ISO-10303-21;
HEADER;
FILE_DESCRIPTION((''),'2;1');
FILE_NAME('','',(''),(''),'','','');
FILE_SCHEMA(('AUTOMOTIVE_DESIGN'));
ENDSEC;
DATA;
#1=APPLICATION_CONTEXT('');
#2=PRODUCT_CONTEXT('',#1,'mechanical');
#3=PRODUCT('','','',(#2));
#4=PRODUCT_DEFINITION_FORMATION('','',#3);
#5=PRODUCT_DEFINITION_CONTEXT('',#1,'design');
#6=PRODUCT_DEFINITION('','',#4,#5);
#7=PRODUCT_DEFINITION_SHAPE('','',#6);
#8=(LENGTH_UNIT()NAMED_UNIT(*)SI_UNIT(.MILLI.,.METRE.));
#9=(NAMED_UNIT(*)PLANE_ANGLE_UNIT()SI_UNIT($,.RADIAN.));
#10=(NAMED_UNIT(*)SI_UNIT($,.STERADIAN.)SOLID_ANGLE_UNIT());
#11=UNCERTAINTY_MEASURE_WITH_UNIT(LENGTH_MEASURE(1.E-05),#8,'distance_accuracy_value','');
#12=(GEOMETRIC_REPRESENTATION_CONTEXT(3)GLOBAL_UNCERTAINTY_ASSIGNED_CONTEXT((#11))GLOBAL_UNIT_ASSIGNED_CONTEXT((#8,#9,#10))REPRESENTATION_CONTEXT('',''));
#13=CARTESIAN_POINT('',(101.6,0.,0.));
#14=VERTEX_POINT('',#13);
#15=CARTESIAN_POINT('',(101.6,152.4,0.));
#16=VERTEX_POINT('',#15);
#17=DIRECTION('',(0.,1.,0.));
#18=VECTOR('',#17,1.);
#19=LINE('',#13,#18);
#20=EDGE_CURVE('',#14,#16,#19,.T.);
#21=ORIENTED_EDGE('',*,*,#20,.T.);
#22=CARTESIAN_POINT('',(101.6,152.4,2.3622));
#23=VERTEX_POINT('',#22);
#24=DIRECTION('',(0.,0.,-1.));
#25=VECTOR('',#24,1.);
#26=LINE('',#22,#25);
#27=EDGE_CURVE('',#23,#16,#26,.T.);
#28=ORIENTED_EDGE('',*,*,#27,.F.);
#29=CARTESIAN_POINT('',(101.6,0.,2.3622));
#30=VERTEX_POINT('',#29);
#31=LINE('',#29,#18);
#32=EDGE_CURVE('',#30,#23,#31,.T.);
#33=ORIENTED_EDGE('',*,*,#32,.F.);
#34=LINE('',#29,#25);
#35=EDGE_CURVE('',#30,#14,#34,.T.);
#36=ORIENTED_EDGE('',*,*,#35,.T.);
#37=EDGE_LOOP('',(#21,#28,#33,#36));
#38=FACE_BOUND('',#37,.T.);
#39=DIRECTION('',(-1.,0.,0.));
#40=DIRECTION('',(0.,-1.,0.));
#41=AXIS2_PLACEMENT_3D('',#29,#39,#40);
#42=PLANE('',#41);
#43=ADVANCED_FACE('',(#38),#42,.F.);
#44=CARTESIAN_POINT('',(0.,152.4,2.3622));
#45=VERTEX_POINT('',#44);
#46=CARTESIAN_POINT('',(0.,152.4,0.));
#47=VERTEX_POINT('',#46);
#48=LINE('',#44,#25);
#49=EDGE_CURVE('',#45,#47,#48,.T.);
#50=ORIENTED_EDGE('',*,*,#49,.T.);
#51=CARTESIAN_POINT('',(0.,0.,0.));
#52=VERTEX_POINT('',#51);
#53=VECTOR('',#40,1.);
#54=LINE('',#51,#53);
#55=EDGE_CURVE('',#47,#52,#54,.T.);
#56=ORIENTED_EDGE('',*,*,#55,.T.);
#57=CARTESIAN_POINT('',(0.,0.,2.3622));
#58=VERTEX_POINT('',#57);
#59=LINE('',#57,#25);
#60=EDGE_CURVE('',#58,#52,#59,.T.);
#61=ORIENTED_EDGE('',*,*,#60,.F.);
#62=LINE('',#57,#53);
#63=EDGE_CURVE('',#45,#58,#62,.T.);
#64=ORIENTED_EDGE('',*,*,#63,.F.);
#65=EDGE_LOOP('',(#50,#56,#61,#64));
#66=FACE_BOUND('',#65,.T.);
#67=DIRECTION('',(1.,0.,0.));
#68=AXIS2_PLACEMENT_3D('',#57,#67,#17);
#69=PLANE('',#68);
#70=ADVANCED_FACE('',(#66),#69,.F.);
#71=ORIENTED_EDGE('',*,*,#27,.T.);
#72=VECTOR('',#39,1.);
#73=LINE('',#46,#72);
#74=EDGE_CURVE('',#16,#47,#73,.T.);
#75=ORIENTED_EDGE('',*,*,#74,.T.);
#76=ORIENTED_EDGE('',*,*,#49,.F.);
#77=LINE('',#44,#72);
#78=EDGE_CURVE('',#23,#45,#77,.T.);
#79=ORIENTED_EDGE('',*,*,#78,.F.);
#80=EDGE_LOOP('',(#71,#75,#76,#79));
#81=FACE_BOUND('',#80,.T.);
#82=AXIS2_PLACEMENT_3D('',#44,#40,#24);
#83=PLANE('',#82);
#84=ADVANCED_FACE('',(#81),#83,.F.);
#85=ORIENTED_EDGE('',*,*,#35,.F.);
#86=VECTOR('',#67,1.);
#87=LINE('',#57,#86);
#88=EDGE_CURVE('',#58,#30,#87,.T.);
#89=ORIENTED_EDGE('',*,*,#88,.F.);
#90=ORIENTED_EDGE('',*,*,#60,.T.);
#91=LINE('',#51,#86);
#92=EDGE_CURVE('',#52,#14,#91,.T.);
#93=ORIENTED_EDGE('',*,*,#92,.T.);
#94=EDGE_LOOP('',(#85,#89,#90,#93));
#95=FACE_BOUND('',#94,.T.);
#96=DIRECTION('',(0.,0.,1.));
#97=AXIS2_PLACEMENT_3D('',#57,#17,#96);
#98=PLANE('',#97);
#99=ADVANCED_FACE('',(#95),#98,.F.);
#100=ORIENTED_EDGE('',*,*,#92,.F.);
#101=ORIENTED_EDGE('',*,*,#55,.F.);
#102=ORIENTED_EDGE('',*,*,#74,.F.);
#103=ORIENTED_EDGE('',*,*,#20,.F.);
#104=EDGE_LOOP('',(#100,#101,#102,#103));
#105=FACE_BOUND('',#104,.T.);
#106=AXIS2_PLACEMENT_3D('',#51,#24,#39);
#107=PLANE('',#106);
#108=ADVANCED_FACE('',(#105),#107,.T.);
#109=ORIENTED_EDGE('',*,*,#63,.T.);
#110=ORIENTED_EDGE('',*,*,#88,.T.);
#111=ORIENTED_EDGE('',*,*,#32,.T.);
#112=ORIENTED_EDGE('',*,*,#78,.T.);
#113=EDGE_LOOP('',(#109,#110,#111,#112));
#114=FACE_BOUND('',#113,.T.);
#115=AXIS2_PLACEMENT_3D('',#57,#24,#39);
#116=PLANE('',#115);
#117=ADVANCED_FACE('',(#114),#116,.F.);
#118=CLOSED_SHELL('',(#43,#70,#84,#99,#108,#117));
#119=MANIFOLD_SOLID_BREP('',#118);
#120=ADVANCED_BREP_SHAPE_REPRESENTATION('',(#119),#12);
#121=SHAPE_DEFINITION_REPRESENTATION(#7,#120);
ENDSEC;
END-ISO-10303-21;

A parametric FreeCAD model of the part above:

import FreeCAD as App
import Part
import Sketcher

V = App.Vector
Q = App.Units.Quantity

doc = App.newDocument("Part")
body = doc.addObject("PartDesign::Body", "Body")

# Sketch on XY plane
sketch1 = body.newObject("Sketcher::SketchObject", "Sketch")
sketch1.AttachmentSupport = (doc.getObject("XY_Plane"), [""])
sketch1.MapMode = "FlatFace"
sketch1.addGeometry(Part.LineSegment(V(0, 152, 0), V(0, 0, 0)), False)
sketch1.addGeometry(Part.LineSegment(V(0, 0, 0), V(102, 0, 0)), False)
sketch1.addGeometry(Part.LineSegment(V(102, 0, 0), V(102, 152, 0)), False)
sketch1.addGeometry(Part.LineSegment(V(102, 152, 0), V(0, 152, 0)), False)
sketch1.addConstraint(Sketcher.Constraint("Coincident", 0, 2, 1, 1))
sketch1.addConstraint(Sketcher.Constraint("Coincident", 1, 2, 2, 1))
sketch1.addConstraint(Sketcher.Constraint("Coincident", 2, 2, 3, 1))
sketch1.addConstraint(Sketcher.Constraint("Coincident", 3, 2, 0, 1))
sketch1.addConstraint(Sketcher.Constraint("Vertical", 0))
sketch1.addConstraint(Sketcher.Constraint("Horizontal", 1))
sketch1.addConstraint(Sketcher.Constraint("Vertical", 2))
sketch1.addConstraint(Sketcher.Constraint("Horizontal", 3))
sketch1.addConstraint(Sketcher.Constraint("Coincident", 0, 2, -1, 1))
sketch1.addConstraint(Sketcher.Constraint("DistanceX", 1, 1, 1, 2, Q("4 in")))
sketch1.addConstraint(Sketcher.Constraint("DistanceY", 0, 2, 0, 1, Q("6 in")))
pad1 = body.newObject("PartDesign::Pad", "Pad")
pad1.Profile = sketch1
pad1.Length = Q("0.093 in")

doc.recompute()
